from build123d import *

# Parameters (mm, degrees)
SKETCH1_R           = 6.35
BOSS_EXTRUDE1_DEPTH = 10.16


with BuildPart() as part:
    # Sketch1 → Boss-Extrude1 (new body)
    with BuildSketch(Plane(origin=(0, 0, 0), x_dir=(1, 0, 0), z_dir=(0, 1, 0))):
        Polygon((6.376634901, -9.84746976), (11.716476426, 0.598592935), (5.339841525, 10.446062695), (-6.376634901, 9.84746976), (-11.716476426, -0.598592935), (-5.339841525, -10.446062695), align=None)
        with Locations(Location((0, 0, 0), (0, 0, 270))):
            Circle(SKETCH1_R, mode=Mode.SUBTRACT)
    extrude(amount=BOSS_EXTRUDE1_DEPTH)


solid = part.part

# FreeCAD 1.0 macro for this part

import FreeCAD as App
import Part
import Sketcher

V = App.Vector
Q = App.Units.Quantity

doc = App.newDocument("Part")
params = doc.addObject("Spreadsheet::Sheet", "Params")
for row, (alias, value) in enumerate([
    ("sketch1_diameter", "0.5 in"),
    ("pad1_length", "0.4 in"),
], start=1):
    params.set(f"A{row}", alias)
    params.set(f"B{row}", "=" + value)
    params.setAlias(f"B{row}", alias)

body = doc.addObject("PartDesign::Body", "Body")

# Sketch on XZ plane
sketch1 = body.newObject("Sketcher::SketchObject", "Sketch")
sketch1.AttachmentSupport = (doc.getObject("XZ_Plane"), [""])
sketch1.MapMode = "FlatFace"
sketch1.addGeometry([
    Part.LineSegment(V(6, 10, 0), V(12, -1, 0)),  # 0
    Part.LineSegment(V(12, -1, 0), V(5, -10, 0)),  # 1
    Part.LineSegment(V(5, -10, 0), V(-6, -10, 0)),  # 2
    Part.LineSegment(V(-6, -10, 0), V(-12, 1, 0)),  # 3
    Part.LineSegment(V(-12, 1, 0), V(-5, 10, 0)),  # 4
    Part.LineSegment(V(-5, 10, 0), V(6, 10, 0)),  # 5
    Part.Circle(V(0, 0, 0), V(0, 0, 1), 6),  # 6
], False)
sketch1.addConstraint([
    Sketcher.Constraint("Coincident", 0, 2, 1, 1),
    Sketcher.Constraint("Coincident", 1, 2, 2, 1),
    Sketcher.Constraint("Coincident", 2, 2, 3, 1),
    Sketcher.Constraint("Coincident", 3, 2, 4, 1),
    Sketcher.Constraint("Coincident", 4, 2, 5, 1),
    Sketcher.Constraint("Coincident", 5, 2, 0, 1),
    Sketcher.Constraint("Coincident", 6, 3, -1, 1),
    Sketcher.Constraint("Symmetric", 0, 2, 3, 2, -1, 1),
    Sketcher.Constraint("Symmetric", 1, 2, 4, 2, -1, 1),
    Sketcher.Constraint("Symmetric", 2, 2, 5, 2, -1, 1),
    Sketcher.Constraint("Equal", 0, 1),
    Sketcher.Constraint("Equal", 1, 2),
    Sketcher.Constraint("Diameter", 6, Q("0.5 in")),
    Sketcher.Constraint("DistanceX", -1, 1, 1, 2, Q("5.339842 mm")),
    Sketcher.Constraint("DistanceY", 2, 2, -1, 1, Q("9.84747 mm")),
    Sketcher.Constraint("DistanceY", 1, 2, 0, 2, Q("9.84747 mm")),
    Sketcher.Constraint("DistanceX", 2, 2, 0, 2, Q("18.093111 mm")),
])
sketch1.setExpression("Constraints[12]", "Params.sketch1_diameter")
pad1 = body.newObject("PartDesign::Pad", "Pad")
pad1.Profile = sketch1
pad1.setExpression("Length", "Params.pad1_length")
pad1.Reversed = True

doc.recompute()
